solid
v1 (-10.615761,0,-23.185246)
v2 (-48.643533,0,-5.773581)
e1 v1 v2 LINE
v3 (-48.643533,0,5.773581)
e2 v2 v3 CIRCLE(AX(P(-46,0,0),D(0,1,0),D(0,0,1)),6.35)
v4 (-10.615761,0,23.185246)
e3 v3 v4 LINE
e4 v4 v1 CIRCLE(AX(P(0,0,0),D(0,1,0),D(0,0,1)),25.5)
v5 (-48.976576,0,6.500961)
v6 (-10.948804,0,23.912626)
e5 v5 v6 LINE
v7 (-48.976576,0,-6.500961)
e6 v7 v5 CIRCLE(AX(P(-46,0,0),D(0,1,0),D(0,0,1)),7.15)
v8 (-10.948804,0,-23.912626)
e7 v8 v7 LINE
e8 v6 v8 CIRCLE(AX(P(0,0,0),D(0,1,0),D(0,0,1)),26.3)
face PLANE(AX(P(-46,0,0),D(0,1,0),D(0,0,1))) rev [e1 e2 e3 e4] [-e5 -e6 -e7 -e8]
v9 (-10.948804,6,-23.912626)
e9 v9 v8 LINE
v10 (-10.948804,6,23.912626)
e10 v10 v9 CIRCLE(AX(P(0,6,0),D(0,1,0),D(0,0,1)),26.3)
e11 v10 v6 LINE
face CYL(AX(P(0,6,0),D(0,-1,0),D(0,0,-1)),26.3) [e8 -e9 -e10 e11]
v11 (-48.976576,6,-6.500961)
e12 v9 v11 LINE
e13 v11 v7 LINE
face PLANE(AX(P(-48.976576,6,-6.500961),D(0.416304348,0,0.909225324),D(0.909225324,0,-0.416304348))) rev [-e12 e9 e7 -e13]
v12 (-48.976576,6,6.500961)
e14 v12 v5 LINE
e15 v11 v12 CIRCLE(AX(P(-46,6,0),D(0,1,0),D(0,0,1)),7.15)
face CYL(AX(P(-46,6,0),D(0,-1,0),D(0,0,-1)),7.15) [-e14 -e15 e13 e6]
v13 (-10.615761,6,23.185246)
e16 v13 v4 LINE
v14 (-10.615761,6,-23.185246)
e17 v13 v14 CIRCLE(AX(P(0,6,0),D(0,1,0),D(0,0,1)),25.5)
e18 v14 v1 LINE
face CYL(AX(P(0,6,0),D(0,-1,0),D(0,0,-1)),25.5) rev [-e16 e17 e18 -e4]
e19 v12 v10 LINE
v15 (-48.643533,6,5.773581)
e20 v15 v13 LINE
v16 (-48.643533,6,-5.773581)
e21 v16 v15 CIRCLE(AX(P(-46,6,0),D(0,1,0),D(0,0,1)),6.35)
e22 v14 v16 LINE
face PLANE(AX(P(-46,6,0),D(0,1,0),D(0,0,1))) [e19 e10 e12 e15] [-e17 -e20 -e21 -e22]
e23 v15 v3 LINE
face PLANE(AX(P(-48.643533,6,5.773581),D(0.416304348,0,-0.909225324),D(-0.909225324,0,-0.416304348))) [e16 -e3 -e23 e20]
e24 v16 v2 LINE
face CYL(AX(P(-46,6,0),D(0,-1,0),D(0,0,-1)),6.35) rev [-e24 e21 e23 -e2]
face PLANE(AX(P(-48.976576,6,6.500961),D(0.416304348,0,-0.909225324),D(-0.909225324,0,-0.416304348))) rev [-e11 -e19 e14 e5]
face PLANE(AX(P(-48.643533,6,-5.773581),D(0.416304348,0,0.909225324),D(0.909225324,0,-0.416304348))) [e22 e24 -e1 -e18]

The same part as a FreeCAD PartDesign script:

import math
import FreeCAD as App
import Part
import Sketcher
from FreeCAD import Vector
Q = App.Units.Quantity

doc = App.newDocument("Part")
params = doc.addObject("Spreadsheet::Sheet", "Params")
for row, (alias, value) in enumerate([
    ("sketch1_radius", "26.3 mm"),
    ("sketch1_radius2", "25.5 mm"),
    ("sketch1_radius3", "7.15 mm"),
    ("pad1_length", "6 mm"),
], start=1):
    params.set(f"A{row}", alias)
    params.set(f"B{row}", "=" + value)
    params.setAlias(f"B{row}", alias)

body = doc.addObject("PartDesign::Body", "Body")

sketch1 = doc.addObject("Sketcher::SketchObject", "Sketch")
body.addObject(sketch1)
sketch1.AttachmentSupport = (doc.XZ_Plane, [""])
sketch1.MapMode = "FlatFace"
sketch1.addGeometry(Part.LineSegment(Vector(-11, -24, 0), Vector(-49, -7, 0)), False)
sketch1.addGeometry(Part.ArcOfCircle(Part.Circle(Vector(-46, 0, 0), Vector(0, 0, 1), 7), math.radians(115), math.radians(245)), False)
sketch1.addGeometry(Part.LineSegment(Vector(-49, 7, 0), Vector(-11, 24, 0)), False)
sketch1.addGeometry(Part.ArcOfCircle(Part.Circle(Vector(0, 0, 0), Vector(0, 0, 1), 26), math.radians(-115), math.radians(115)), False)
sketch1.addGeometry(Part.LineSegment(Vector(-49, -6, 0), Vector(-11, -23, 0)), False)
sketch1.addGeometry(Part.ArcOfCircle(Part.Circle(Vector(0, 0, 0), Vector(0, 0, 1), 26), math.radians(-115), math.radians(115)), False)
sketch1.addGeometry(Part.LineSegment(Vector(-11, 23, 0), Vector(-49, 6, 0)), False)
sketch1.addGeometry(Part.ArcOfCircle(Part.Circle(Vector(-46, 0, 0), Vector(0, 0, 1), 6), math.radians(115), math.radians(245)), False)
sketch1.addConstraint(Sketcher.Constraint("Tangent", 0, 2, 1, 2))
sketch1.addConstraint(Sketcher.Constraint("Tangent", 1, 1, 2, 1))
sketch1.addConstraint(Sketcher.Constraint("Tangent", 2, 2, 3, 2))
sketch1.addConstraint(Sketcher.Constraint("Tangent", 3, 1, 0, 1))
sketch1.addConstraint(Sketcher.Constraint("Tangent", 4, 2, 5, 1))
sketch1.addConstraint(Sketcher.Constraint("Tangent", 5, 2, 6, 1))
sketch1.addConstraint(Sketcher.Constraint("Tangent", 6, 2, 7, 1))
sketch1.addConstraint(Sketcher.Constraint("Tangent", 7, 2, 4, 1))
sketch1.addConstraint(Sketcher.Constraint("Coincident", 3, 3, -1, 1))
sketch1.addConstraint(Sketcher.Constraint("Coincident", 5, 3, -1, 1))
sketch1.addConstraint(Sketcher.Constraint("Coincident", 7, 3, 1, 3))
sketch1.addConstraint(Sketcher.Constraint("PointOnObject", 1, 3, -1))
sketch1.addConstraint(Sketcher.Constraint("Parallel", 0, 4))
sketch1.addConstraint(Sketcher.Constraint("Radius", 3, Q("26.3 mm")))
sketch1.addConstraint(Sketcher.Constraint("Radius", 5, Q("25.5 mm")))
sketch1.addConstraint(Sketcher.Constraint("Radius", 1, Q("7.15 mm")))
sketch1.addConstraint(Sketcher.Constraint("DistanceX", 1, 3, -1, 1, Q("46 mm")))
sketch1.setExpression("Constraints[13]", "Params.sketch1_radius")
sketch1.setExpression("Constraints[14]", "Params.sketch1_radius2")
sketch1.setExpression("Constraints[15]", "Params.sketch1_radius3")
pad1 = doc.addObject("PartDesign::Pad", "Pad")
body.addObject(pad1)
pad1.Profile = sketch1
pad1.setExpression("Length", "Params.pad1_length")
pad1.Reversed = True

doc.recompute()
